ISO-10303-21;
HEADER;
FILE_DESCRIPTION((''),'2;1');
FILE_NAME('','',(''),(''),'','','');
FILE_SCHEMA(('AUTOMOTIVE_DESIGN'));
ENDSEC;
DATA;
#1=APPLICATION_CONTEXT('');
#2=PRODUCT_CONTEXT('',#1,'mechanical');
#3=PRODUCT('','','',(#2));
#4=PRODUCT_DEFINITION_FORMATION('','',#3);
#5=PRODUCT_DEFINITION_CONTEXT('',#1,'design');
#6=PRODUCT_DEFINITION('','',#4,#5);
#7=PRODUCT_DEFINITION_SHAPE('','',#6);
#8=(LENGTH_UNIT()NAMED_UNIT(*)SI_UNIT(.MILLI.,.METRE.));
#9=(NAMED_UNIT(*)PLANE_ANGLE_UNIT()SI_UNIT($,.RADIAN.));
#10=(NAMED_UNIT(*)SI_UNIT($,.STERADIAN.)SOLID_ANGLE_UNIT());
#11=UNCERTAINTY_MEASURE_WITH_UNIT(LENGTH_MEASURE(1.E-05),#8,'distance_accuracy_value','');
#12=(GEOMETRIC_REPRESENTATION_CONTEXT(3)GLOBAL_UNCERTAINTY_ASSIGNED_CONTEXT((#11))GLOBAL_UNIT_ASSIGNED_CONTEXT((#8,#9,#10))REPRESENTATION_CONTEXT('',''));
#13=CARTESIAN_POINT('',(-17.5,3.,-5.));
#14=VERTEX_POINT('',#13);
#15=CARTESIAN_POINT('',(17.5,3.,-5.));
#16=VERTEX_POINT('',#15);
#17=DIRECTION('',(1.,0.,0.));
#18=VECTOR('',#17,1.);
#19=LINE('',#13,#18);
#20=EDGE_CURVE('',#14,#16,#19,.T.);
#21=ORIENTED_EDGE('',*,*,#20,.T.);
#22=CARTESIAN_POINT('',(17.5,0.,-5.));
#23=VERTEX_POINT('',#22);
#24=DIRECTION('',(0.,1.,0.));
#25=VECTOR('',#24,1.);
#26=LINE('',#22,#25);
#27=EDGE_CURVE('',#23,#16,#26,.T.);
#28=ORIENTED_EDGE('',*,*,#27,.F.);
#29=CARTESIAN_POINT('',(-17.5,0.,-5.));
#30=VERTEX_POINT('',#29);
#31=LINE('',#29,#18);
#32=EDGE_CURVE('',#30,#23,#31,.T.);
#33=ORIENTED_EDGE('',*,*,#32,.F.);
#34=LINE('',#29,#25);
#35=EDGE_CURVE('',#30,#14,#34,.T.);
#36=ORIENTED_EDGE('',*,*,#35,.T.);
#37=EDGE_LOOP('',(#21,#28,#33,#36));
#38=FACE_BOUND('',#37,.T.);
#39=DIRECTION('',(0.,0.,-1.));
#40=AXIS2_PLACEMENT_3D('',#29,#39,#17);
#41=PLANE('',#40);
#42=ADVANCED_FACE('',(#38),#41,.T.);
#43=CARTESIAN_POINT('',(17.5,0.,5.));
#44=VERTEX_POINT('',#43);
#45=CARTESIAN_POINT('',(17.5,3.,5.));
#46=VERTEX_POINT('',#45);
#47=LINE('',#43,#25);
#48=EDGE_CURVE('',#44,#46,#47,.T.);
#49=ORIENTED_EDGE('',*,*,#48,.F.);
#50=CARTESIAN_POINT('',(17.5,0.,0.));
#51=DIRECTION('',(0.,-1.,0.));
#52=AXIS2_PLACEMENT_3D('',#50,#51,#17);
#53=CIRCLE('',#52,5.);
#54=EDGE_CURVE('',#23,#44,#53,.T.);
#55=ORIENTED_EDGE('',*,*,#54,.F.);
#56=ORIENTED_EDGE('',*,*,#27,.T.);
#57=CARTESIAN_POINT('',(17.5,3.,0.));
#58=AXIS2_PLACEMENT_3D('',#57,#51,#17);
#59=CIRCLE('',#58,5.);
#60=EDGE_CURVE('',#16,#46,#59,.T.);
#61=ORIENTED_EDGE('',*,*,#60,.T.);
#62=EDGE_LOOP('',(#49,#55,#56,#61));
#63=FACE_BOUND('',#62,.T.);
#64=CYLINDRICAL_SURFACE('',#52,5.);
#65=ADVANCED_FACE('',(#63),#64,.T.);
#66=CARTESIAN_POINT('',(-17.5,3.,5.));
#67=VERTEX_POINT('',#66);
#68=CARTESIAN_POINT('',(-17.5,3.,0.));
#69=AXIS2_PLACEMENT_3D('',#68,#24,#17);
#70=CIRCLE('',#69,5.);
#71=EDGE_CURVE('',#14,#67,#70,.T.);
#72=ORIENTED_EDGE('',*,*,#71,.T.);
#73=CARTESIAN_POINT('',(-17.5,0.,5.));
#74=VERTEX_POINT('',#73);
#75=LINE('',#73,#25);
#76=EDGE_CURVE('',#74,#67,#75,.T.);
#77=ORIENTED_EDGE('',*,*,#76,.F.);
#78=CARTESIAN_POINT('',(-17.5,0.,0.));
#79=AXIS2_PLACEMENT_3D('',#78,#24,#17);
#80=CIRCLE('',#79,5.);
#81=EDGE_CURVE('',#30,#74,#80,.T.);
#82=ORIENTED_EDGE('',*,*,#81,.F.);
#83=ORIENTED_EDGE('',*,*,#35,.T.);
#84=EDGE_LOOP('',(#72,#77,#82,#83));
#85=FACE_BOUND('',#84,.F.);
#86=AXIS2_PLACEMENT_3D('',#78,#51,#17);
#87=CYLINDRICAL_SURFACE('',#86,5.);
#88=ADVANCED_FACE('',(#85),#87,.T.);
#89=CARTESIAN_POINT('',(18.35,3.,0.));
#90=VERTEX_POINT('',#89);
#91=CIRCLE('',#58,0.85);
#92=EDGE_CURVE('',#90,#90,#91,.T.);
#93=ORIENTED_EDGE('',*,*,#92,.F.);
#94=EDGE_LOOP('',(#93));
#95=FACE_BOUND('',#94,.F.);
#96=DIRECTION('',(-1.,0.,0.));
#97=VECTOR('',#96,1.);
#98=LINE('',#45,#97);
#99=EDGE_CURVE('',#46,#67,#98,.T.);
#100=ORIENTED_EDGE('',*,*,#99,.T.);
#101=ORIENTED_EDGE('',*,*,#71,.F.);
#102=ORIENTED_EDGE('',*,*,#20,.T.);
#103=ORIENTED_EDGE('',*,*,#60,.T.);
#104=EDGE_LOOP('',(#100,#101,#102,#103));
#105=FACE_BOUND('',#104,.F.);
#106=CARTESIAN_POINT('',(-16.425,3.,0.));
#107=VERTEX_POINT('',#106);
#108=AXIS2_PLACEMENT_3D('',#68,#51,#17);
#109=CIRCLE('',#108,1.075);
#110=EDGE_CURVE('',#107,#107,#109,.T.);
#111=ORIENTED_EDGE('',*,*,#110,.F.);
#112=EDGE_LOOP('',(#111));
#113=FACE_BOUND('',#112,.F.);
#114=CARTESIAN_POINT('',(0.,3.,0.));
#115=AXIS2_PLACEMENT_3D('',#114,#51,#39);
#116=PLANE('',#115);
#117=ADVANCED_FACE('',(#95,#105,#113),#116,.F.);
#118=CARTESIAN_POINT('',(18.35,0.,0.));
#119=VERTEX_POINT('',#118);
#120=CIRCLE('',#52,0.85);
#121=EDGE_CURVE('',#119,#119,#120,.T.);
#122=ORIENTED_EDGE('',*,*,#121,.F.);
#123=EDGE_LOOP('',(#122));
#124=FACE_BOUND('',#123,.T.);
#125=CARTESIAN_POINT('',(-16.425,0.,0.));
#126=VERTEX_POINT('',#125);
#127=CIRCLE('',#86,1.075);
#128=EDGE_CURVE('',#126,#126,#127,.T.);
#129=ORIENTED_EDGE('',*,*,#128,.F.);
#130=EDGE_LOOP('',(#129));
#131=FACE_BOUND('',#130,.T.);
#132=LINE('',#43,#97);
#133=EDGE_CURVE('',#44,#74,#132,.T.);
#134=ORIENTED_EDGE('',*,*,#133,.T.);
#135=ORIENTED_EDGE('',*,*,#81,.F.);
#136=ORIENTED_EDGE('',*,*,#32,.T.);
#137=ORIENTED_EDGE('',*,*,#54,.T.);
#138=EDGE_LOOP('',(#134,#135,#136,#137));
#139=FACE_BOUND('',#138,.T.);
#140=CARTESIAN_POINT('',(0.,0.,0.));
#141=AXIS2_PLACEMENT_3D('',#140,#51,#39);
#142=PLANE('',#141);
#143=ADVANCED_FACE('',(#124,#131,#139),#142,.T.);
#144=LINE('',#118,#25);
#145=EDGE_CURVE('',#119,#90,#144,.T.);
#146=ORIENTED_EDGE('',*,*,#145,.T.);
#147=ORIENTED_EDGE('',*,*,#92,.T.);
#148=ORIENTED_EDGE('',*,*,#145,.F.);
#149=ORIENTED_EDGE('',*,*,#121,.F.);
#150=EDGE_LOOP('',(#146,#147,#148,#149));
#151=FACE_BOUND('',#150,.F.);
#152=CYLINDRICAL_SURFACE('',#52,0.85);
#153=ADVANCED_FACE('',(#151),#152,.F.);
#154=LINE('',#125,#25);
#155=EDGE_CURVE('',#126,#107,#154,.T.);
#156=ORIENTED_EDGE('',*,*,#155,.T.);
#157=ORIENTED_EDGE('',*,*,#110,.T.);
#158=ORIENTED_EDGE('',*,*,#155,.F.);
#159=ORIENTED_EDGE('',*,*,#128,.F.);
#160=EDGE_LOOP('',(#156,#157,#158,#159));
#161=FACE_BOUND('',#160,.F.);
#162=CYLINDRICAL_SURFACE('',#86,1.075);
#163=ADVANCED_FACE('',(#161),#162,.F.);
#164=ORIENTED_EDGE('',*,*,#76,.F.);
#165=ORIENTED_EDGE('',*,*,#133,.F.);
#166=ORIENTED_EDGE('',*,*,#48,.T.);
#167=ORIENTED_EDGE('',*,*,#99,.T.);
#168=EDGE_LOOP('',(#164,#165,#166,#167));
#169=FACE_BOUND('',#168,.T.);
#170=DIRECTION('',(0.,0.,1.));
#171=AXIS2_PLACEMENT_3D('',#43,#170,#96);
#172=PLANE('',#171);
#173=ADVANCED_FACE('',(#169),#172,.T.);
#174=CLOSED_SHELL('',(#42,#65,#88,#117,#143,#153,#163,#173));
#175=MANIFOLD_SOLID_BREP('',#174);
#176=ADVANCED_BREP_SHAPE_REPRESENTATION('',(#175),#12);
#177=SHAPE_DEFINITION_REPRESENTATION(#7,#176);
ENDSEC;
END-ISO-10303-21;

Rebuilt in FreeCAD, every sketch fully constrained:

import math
import FreeCAD as App
import Part
import Sketcher

V = App.Vector
Q = App.Units.Quantity

doc = App.newDocument("Part")
body = doc.addObject("PartDesign::Body", "Body")

# Sketch on XZ plane
sketch1 = doc.addObject("Sketcher::SketchObject", "Sketch")
body.addObject(sketch1)
sketch1.AttachmentSupport = (doc.XZ_Plane, [""])
sketch1.MapMode = "FlatFace"
sketch1.addGeometry(Part.ArcOfCircle(Part.Circle(V(-18, 0, 0), V(0, 0, 1), 5), math.radians(90), math.radians(270)), False)
sketch1.addGeometry(Part.LineSegment(V(-18, -5, 0), V(18, -5, 0)), False)
sketch1.addGeometry(Part.ArcOfCircle(Part.Circle(V(18, 0, 0), V(0, 0, 1), 5), math.radians(-90), math.radians(90)), False)
sketch1.addGeometry(Part.LineSegment(V(18, 5, 0), V(-18, 5, 0)), False)
sketch1.addConstraint(Sketcher.Constraint("Tangent", 0, 2, 1, 1))
sketch1.addConstraint(Sketcher.Constraint("Tangent", 1, 2, 2, 1))
sketch1.addConstraint(Sketcher.Constraint("Tangent", 2, 2, 3, 1))
sketch1.addConstraint(Sketcher.Constraint("Tangent", 3, 2, 0, 1))
sketch1.addConstraint(Sketcher.Constraint("Horizontal", 1))
sketch1.addConstraint(Sketcher.Constraint("Horizontal", 3))
sketch1.addConstraint(Sketcher.Constraint("Symmetric", 0, 3, 2, 3, -1, 1))
sketch1.addConstraint(Sketcher.Constraint("Radius", 0, Q("5 mm")))
sketch1.addConstraint(Sketcher.Constraint("DistanceX", 0, 3, -1, 1, Q("17.5 mm")))
pad1 = doc.addObject("PartDesign::Pad", "Pad")
body.addObject(pad1)
pad1.Profile = sketch1
pad1.Length = 3
pad1.Reversed = True

# Sketch on XZ plane
sketch2 = doc.addObject("Sketcher::SketchObject", "Sketch001")
body.addObject(sketch2)
sketch2.AttachmentSupport = (doc.XZ_Plane, [""])
sketch2.MapMode = "FlatFace"
sketch2.addGeometry(Part.Circle(V(-17.5, 0, 0), V(0, 0, 1), 1.1), False)
sketch2.addGeometry(Part.Circle(V(17.5, 0, 0), V(0, 0, 1), 0.8), False)
sketch2.addConstraint(Sketcher.Constraint("Symmetric", 0, 3, 1, 3, -1, 1))
sketch2.addConstraint(Sketcher.Constraint("PointOnObject", 0, 3, -1))
sketch2.addConstraint(Sketcher.Constraint("Diameter", 1, Q("1.7 mm")))
sketch2.addConstraint(Sketcher.Constraint("Diameter", 0, Q("2.15 mm")))
sketch2.addConstraint(Sketcher.Constraint("DistanceX", 0, 3, 1, 3, Q("35 mm")))
pocket1 = doc.addObject("PartDesign::Pocket", "Pocket")
body.addObject(pocket1)
pocket1.Profile = sketch2
pocket1.Length = 26.6987

doc.recompute()
